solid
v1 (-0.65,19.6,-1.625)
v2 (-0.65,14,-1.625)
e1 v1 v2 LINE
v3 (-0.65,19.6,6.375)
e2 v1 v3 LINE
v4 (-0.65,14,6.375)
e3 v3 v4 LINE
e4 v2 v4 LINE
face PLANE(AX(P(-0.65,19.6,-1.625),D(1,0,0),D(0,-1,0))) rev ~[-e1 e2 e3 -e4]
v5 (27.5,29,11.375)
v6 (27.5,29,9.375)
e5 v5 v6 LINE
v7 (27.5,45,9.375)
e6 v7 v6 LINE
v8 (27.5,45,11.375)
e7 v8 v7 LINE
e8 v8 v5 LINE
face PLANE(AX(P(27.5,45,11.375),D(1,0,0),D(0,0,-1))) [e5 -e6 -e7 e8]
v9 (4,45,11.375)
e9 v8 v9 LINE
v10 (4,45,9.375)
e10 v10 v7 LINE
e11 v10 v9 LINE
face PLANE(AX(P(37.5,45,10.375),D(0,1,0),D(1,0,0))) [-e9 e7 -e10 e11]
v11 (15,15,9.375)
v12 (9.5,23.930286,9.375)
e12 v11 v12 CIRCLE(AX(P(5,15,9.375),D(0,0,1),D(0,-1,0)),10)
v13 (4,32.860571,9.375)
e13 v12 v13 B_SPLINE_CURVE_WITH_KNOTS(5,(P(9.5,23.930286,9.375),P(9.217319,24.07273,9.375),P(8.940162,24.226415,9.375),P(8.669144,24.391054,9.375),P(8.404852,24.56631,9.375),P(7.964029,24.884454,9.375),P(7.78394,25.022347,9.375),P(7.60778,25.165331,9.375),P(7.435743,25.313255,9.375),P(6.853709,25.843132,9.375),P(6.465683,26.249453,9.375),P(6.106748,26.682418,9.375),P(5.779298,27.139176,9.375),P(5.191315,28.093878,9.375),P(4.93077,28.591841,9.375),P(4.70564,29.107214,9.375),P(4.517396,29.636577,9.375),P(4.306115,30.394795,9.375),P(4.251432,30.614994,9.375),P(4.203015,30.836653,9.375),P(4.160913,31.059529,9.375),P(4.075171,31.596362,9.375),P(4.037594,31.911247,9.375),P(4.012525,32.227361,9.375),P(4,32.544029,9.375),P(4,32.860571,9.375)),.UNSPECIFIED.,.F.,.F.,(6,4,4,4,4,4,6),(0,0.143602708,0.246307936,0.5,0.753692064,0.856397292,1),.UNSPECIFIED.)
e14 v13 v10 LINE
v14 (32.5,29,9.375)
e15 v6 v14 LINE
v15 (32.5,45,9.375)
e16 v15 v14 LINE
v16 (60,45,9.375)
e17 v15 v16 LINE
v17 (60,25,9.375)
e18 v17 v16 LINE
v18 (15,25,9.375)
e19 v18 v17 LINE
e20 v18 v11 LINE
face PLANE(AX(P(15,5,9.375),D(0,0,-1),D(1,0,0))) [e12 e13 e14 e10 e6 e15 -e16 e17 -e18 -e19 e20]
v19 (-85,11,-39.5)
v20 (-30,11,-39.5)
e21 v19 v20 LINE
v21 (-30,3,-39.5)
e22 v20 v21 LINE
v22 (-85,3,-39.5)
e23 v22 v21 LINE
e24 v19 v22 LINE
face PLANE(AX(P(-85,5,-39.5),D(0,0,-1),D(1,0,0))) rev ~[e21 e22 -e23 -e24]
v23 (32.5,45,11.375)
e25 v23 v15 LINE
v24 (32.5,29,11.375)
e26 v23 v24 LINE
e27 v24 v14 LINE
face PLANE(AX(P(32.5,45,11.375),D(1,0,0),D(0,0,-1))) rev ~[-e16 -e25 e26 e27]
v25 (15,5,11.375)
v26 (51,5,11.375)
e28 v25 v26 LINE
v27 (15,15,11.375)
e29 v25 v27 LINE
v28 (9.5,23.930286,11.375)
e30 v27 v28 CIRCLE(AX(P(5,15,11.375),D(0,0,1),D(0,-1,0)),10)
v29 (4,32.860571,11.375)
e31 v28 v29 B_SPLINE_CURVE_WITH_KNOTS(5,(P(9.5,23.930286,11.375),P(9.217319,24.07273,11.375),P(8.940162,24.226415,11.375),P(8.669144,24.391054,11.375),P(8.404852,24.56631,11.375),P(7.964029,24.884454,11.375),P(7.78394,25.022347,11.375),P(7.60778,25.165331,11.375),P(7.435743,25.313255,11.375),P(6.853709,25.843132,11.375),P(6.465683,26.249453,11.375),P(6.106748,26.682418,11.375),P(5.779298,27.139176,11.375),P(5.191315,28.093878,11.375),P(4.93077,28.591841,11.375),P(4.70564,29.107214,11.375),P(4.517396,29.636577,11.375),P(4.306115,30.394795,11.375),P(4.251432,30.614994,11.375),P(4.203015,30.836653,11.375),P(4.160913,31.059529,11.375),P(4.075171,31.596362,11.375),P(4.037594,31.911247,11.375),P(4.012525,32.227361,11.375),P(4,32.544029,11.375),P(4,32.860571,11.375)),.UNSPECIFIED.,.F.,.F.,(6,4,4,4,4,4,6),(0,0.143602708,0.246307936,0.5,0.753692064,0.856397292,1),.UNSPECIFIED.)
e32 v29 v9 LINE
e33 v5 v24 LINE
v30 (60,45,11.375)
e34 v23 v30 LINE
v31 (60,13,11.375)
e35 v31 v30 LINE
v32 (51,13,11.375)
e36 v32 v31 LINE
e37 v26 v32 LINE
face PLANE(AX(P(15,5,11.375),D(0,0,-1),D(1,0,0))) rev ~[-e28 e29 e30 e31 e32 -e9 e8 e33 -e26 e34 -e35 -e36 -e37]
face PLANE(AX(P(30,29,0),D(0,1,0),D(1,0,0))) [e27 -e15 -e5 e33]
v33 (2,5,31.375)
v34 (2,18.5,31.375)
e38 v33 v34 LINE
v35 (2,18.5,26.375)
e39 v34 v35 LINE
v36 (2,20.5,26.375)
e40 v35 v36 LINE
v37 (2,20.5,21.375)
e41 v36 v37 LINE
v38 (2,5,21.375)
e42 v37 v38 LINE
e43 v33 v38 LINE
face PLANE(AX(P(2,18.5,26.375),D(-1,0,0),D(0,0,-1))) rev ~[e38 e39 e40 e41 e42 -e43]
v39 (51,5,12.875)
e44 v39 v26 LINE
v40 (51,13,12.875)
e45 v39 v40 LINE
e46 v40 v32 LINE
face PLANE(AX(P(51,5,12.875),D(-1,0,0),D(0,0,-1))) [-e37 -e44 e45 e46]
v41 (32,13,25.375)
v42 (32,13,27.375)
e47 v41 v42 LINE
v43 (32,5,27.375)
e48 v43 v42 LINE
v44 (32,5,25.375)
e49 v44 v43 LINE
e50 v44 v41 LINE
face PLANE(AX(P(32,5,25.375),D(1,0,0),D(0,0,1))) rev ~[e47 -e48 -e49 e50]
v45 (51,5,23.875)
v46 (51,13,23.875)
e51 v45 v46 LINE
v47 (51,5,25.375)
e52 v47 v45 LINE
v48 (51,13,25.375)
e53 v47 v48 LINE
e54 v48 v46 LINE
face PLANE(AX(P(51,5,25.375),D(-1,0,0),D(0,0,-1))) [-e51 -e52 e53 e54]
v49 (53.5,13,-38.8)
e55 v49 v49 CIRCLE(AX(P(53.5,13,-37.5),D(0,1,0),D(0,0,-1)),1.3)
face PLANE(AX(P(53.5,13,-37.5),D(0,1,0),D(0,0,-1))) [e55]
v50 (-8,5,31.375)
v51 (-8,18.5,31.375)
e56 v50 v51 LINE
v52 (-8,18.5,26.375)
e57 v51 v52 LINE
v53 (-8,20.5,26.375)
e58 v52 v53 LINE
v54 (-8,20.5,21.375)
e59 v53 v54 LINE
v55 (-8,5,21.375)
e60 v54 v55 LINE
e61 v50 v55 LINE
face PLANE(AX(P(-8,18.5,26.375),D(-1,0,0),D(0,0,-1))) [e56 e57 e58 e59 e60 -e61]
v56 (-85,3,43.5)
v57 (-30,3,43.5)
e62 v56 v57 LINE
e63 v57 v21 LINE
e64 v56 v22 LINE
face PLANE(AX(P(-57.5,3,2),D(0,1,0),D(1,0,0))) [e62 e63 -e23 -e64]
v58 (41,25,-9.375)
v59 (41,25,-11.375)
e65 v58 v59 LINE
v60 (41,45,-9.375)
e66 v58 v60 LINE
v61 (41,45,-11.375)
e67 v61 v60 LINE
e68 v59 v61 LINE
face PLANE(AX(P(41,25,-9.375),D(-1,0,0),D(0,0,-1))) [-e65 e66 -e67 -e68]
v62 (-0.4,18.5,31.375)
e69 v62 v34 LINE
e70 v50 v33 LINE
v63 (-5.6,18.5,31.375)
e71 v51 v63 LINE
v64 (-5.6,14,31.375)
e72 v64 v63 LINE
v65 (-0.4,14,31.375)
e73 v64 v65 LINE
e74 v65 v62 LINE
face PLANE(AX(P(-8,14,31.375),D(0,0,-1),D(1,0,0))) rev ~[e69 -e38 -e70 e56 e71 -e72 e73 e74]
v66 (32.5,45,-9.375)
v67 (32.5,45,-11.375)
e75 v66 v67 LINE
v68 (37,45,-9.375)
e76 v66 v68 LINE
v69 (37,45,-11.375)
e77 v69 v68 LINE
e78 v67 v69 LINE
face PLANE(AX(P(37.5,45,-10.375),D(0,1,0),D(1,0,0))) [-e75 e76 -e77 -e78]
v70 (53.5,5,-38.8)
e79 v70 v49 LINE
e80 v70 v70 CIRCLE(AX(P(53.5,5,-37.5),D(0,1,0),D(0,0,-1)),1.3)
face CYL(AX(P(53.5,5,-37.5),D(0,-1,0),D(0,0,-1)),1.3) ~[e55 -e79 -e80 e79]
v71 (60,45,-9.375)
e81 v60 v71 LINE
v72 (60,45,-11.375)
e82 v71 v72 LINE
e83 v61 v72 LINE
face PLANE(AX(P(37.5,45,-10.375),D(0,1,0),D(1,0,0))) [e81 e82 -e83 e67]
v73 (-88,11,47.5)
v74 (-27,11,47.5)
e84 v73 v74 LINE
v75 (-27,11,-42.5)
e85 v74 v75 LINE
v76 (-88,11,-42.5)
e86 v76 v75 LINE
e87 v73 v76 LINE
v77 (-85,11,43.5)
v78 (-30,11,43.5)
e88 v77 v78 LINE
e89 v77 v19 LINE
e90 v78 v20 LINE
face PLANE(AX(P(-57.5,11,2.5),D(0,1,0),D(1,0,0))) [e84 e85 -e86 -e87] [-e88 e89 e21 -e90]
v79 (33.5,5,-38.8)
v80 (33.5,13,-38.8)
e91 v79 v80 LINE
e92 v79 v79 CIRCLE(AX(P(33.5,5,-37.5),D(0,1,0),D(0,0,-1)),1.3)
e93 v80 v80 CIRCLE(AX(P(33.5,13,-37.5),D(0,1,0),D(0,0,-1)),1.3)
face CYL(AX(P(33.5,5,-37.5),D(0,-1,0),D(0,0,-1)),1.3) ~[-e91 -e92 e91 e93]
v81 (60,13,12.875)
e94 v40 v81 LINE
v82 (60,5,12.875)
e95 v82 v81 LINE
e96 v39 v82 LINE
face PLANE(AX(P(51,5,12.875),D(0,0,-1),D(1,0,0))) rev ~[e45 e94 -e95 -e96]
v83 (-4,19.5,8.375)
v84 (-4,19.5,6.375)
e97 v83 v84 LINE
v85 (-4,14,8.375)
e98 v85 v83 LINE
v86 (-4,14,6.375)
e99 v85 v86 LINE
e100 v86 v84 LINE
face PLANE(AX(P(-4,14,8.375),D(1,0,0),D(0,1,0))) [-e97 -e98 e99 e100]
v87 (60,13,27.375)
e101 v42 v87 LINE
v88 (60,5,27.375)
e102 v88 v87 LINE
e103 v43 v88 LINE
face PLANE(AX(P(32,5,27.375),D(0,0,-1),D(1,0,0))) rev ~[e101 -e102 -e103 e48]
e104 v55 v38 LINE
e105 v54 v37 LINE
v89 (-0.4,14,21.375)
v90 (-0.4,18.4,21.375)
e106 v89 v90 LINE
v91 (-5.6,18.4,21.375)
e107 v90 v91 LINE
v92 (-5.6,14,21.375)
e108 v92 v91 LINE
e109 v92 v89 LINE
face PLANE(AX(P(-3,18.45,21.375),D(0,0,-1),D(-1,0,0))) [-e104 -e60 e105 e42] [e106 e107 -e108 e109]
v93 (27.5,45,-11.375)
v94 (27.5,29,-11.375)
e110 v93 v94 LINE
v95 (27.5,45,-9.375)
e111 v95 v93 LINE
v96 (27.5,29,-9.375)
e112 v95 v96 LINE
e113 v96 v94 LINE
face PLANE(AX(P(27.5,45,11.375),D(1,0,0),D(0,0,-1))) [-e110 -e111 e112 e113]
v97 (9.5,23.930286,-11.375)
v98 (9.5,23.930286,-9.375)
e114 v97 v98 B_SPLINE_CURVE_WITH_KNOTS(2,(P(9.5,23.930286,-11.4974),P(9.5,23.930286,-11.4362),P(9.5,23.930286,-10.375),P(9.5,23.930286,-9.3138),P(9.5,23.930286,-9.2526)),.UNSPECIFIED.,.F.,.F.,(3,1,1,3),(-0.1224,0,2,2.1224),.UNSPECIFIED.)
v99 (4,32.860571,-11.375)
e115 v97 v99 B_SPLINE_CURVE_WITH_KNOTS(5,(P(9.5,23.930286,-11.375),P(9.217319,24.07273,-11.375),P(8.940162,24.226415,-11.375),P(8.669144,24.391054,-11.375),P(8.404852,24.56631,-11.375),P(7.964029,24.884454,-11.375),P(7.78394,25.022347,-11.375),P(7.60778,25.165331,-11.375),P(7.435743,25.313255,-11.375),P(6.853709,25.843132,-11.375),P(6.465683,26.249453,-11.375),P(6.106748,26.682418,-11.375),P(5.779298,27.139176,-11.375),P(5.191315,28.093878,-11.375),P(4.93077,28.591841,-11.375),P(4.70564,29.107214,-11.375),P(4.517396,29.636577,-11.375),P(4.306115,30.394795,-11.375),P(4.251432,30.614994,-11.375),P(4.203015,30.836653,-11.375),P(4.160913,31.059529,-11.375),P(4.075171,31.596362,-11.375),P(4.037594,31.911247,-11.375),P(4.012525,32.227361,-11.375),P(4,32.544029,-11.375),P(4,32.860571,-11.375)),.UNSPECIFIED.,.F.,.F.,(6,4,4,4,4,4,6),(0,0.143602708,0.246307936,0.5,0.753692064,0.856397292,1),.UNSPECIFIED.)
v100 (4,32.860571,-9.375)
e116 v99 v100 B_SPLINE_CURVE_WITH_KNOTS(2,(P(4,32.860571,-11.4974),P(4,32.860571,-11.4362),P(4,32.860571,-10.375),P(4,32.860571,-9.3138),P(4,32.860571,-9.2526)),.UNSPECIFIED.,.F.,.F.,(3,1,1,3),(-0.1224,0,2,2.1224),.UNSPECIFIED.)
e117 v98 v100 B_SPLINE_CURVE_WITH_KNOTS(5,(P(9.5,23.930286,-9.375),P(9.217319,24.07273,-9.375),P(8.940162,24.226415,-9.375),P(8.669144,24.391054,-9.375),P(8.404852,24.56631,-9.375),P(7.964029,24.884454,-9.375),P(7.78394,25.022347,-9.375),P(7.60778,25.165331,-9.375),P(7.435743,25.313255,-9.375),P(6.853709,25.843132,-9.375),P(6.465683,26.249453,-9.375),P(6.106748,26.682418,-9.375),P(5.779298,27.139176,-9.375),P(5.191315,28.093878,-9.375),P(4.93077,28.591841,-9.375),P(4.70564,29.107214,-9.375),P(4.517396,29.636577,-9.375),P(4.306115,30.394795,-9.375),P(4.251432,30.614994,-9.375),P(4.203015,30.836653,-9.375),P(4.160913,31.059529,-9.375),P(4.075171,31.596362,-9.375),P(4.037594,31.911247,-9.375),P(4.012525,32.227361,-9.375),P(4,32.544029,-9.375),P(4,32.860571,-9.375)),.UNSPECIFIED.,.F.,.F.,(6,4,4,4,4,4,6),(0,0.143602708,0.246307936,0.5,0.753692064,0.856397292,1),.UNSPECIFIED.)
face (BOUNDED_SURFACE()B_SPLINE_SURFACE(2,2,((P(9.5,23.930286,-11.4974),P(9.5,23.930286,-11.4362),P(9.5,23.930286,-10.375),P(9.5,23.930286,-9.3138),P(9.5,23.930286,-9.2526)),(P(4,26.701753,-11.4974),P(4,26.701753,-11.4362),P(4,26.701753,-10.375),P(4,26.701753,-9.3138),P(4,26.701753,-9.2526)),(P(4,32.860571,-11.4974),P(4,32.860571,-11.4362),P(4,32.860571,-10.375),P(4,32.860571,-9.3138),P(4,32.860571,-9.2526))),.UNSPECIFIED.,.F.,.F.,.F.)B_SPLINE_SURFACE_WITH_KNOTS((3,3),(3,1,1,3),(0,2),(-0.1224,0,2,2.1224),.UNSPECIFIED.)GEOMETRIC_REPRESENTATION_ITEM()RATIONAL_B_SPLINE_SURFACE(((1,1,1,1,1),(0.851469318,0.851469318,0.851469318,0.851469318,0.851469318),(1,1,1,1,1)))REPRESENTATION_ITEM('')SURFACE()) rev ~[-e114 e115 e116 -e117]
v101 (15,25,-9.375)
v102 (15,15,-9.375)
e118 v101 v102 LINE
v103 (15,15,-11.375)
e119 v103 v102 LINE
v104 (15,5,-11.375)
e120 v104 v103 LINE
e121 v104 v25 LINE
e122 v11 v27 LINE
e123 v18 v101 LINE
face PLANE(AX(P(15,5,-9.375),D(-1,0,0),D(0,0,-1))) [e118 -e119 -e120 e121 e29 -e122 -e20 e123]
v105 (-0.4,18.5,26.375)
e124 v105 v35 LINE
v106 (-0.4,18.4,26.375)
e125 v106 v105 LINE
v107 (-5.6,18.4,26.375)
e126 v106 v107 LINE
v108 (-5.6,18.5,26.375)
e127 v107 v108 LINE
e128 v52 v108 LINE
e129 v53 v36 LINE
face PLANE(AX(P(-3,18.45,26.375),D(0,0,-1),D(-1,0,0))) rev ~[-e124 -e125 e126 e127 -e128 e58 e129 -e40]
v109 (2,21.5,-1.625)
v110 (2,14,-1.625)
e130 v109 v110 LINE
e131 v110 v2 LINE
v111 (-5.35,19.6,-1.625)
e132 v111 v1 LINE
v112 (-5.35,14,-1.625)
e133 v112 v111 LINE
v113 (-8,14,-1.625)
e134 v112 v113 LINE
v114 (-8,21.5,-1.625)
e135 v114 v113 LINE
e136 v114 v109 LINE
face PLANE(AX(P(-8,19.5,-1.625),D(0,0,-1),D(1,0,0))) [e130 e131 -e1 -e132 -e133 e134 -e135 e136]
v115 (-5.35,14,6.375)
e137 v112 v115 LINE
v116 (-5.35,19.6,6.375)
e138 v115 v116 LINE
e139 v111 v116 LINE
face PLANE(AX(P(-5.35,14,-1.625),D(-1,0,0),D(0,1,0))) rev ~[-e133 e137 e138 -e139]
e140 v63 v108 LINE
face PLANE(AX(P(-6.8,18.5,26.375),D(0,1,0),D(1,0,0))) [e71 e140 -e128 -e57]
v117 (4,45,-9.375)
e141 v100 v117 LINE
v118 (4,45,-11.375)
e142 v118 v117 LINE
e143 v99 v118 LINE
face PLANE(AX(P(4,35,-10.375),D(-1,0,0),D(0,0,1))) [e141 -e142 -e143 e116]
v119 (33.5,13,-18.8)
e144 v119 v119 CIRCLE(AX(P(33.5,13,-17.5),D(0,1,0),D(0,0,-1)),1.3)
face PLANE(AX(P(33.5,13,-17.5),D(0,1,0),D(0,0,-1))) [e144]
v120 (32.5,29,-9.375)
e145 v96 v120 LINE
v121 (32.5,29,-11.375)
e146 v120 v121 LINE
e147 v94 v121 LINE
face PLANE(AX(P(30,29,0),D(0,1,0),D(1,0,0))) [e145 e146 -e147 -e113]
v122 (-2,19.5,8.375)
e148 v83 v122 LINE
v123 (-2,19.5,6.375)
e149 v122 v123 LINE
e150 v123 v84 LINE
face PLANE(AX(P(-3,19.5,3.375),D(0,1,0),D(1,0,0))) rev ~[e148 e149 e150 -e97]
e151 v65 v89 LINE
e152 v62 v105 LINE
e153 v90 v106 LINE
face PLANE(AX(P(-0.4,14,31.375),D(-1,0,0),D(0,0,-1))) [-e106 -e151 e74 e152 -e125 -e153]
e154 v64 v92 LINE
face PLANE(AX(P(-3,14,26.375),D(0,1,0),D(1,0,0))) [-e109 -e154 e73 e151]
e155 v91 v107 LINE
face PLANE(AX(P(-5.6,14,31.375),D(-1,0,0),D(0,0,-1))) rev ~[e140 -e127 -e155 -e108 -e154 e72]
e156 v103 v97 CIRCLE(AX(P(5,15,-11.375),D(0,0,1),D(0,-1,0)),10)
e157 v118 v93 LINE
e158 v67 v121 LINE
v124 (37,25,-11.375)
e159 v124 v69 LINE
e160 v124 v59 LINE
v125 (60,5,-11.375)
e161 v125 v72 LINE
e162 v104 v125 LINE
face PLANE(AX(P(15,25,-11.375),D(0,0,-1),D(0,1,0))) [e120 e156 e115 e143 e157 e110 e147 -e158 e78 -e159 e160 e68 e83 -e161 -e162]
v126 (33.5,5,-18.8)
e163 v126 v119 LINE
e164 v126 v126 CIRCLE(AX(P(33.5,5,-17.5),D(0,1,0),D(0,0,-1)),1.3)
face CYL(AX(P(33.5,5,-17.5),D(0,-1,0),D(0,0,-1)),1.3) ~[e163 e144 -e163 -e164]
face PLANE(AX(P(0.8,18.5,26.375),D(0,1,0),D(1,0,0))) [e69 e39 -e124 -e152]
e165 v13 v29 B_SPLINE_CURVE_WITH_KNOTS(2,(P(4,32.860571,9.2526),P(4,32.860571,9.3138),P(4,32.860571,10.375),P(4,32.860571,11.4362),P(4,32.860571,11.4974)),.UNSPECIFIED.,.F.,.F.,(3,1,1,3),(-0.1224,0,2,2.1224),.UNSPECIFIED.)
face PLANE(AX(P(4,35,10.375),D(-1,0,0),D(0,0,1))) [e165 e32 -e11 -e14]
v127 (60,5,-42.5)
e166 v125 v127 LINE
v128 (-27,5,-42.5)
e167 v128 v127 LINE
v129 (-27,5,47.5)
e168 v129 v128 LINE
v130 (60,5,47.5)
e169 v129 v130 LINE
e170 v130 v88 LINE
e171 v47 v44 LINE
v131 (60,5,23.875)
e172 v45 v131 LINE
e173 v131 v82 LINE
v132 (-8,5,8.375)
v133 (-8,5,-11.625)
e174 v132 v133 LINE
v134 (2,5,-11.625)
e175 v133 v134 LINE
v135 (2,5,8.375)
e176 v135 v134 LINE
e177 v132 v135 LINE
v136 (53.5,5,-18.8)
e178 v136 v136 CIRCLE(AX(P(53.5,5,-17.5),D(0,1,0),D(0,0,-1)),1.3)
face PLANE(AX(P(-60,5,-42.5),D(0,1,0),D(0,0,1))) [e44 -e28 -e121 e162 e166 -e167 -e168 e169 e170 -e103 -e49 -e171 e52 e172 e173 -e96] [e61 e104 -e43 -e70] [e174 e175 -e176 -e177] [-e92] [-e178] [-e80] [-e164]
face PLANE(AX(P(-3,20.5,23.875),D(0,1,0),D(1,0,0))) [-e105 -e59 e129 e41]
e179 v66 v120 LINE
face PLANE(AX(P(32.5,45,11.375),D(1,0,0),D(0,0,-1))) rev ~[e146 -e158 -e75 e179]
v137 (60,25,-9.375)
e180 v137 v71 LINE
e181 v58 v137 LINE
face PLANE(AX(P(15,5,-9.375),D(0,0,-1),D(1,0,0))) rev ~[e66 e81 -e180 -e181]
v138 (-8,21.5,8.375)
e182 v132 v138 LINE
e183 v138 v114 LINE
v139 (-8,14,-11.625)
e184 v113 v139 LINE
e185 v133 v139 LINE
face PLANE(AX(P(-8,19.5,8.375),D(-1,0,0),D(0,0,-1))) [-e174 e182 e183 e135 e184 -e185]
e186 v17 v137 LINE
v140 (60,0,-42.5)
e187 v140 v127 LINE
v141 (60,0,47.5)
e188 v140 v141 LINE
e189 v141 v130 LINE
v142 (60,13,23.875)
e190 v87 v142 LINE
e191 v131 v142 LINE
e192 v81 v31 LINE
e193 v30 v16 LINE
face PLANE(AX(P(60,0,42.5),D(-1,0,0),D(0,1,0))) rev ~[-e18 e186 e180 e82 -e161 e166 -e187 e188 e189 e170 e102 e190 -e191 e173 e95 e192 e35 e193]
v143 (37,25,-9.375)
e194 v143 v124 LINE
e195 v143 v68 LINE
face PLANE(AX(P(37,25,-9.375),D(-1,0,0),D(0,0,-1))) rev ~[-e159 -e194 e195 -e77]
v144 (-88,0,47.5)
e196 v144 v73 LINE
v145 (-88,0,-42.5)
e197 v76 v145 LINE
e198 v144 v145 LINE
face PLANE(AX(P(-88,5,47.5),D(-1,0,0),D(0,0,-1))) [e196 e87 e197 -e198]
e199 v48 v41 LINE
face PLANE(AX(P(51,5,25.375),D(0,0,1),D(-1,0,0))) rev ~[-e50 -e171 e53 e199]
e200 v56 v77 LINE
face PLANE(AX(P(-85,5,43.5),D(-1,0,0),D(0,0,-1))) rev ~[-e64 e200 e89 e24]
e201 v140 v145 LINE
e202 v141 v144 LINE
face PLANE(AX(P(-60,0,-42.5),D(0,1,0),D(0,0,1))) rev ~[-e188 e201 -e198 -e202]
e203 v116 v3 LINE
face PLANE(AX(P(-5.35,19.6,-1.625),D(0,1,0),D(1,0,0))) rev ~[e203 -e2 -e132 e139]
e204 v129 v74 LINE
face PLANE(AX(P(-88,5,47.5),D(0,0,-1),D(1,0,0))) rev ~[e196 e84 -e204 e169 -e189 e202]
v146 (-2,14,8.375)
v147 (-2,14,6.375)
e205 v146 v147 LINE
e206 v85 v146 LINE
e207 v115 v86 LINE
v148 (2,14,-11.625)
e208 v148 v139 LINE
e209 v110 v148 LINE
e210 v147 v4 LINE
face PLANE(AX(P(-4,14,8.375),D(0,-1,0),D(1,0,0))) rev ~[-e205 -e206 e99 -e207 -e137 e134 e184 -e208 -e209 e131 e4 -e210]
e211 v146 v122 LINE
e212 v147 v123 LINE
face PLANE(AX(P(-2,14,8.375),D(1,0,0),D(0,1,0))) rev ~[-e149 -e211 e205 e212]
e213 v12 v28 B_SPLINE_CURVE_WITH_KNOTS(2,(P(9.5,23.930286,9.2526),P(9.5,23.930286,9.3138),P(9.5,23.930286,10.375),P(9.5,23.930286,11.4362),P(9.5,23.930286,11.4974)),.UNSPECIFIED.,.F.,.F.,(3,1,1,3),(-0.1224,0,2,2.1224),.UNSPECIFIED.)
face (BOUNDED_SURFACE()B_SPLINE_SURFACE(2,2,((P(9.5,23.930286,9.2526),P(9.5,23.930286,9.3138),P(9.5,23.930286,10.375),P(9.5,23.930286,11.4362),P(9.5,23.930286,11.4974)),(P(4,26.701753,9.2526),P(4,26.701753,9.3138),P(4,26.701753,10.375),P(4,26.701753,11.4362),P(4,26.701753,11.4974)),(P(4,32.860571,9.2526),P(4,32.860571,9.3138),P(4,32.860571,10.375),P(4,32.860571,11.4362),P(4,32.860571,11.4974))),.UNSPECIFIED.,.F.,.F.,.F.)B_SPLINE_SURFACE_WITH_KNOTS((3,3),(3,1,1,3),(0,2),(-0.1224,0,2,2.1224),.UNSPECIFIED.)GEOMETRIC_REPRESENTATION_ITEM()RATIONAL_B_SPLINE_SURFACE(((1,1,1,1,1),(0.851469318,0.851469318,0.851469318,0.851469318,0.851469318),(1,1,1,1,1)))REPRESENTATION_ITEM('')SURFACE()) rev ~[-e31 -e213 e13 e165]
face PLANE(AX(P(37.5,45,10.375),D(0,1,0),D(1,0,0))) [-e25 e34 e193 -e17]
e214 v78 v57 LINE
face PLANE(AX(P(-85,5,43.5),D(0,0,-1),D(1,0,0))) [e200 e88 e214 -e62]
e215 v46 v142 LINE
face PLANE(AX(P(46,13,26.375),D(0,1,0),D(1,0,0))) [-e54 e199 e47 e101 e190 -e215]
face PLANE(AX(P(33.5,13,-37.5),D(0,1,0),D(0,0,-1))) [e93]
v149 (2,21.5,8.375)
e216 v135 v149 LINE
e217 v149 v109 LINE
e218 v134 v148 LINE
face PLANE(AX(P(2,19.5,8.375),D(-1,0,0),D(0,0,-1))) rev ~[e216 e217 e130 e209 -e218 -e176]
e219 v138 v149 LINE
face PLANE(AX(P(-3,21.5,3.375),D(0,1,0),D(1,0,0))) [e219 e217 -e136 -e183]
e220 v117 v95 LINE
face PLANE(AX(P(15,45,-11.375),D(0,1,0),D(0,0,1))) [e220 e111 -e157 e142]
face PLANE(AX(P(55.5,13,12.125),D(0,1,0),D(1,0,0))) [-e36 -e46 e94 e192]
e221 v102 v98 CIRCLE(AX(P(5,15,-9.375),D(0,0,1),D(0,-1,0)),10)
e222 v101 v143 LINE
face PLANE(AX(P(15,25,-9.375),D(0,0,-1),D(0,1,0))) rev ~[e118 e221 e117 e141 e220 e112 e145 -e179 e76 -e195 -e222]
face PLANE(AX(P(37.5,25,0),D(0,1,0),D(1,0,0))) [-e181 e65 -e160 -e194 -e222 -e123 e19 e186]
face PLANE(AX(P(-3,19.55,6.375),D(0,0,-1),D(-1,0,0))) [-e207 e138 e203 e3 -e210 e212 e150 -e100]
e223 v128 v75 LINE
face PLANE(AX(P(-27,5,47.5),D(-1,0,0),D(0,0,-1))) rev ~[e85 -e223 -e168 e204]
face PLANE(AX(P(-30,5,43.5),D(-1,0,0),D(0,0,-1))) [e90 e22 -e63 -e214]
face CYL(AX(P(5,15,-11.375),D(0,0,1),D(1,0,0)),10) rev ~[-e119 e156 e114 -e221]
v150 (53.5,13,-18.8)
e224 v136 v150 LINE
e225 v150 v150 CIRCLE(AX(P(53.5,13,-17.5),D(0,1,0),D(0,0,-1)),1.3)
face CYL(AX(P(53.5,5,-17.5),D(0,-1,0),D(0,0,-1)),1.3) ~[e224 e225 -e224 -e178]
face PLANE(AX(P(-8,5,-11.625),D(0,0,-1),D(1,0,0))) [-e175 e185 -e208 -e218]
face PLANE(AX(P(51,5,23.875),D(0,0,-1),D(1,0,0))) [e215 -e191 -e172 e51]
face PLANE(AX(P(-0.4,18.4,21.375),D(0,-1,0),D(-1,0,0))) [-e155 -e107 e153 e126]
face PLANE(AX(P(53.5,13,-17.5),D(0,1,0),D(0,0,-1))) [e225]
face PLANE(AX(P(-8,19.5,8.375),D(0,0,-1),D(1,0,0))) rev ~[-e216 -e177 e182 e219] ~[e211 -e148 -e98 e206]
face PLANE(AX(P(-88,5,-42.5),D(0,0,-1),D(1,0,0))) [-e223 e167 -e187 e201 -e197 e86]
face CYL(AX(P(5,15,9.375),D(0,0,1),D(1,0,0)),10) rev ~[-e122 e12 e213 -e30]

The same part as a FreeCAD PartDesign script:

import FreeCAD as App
import Part
import Sketcher
from FreeCAD import Vector
Q = App.Units.Quantity


def edges_at(feature, points):
    """Names of the edges that pass closest to the given points."""
    edges = feature.Shape.Edges
    near = lambda p: min(range(len(edges)), key=lambda i: edges[i].distToShape(Part.Vertex(*p))[0])
    return sorted({f"Edge{near(p) + 1}" for p in points})


def add_polygon(sketch, points):
    """Adds a closed chain of lines whose ends are joined by coincident constraints."""
    first, n = sketch.GeometryCount, len(points)
    for a, b in zip(points, points[1:] + points[:1]):
        sketch.addGeometry(Part.LineSegment(App.Vector(*a, 0), App.Vector(*b, 0)), False)
    for i in range(n):
        sketch.addConstraint(Sketcher.Constraint("Coincident", first + i, 2, first + (i + 1) % n, 1))

doc = App.newDocument("Part")
body = doc.addObject("PartDesign::Body", "Body")

# Sketch on XZ plane
sketch1 = doc.addObject("Sketcher::SketchObject", "Sketch")
body.addObject(sketch1)
sketch1.AttachmentSupport = (doc.XZ_Plane, [""])
sketch1.MapMode = "FlatFace"
add_polygon(sketch1, [(-60, -42.5), (-60, 42.5), (60, 42.5), (60, -42.5)])  # lines 0-3
sketch1.addConstraint(Sketcher.Constraint("Vertical", 0))
sketch1.addConstraint(Sketcher.Constraint("Horizontal", 1))
sketch1.addConstraint(Sketcher.Constraint("Vertical", 2))
sketch1.addConstraint(Sketcher.Constraint("Horizontal", 3))
sketch1.addConstraint(Sketcher.Constraint("Symmetric", 0, 2, 2, 2, -1, 1))
sketch1.addConstraint(Sketcher.Constraint("DistanceX", 1, 1, 1, 2, Q("120 mm")))
sketch1.addConstraint(Sketcher.Constraint("DistanceY", 0, 1, 0, 2, Q("85 mm")))
pad1 = doc.addObject("PartDesign::Pad", "Pad")
body.addObject(pad1)
pad1.Profile = sketch1
pad1.Length = 5
pad1.Reversed = True

# Sketch on XZ plane
sketch2 = doc.addObject("Sketcher::SketchObject", "Sketch001")
body.addObject(sketch2)
sketch2.AttachmentSupport = (doc.XZ_Plane, [""])
sketch2.MapMode = "FlatFace"
sketch2.AttachmentOffset = App.Placement(Vector(0, 0, -5), App.Rotation())
add_polygon(sketch2, [(15, -9.375), (15, 9.375), (60, 9.375), (60, -9.375)])  # lines 0-3
sketch2.addConstraint(Sketcher.Constraint("Vertical", 0))
sketch2.addConstraint(Sketcher.Constraint("Horizontal", 1))
sketch2.addConstraint(Sketcher.Constraint("Vertical", 2))
sketch2.addConstraint(Sketcher.Constraint("Horizontal", 3))
sketch2.addConstraint(Sketcher.Constraint("DistanceX", 1, 1, 1, 2, Q("45 mm")))
sketch2.addConstraint(Sketcher.Constraint("DistanceX", -1, 1, 0, 2, Q("15 mm")))
sketch2.addConstraint(Sketcher.Constraint("DistanceY", 0, 1, 0, 2, Q("18.75 mm")))
sketch2.addConstraint(Sketcher.Constraint("DistanceY", -1, 1, 0, 2, Q("9.375 mm")))
pad2 = doc.addObject("PartDesign::Pad", "Pad001")
body.addObject(pad2)
pad2.Profile = sketch2
pad2.Length = 20
pad2.Reversed = True

# Sketch on XZ plane
sketch3 = doc.addObject("Sketcher::SketchObject", "Sketch002")
body.addObject(sketch3)
sketch3.AttachmentSupport = (doc.XZ_Plane, [""])
sketch3.MapMode = "FlatFace"
sketch3.AttachmentOffset = App.Placement(Vector(0, 0, -5), App.Rotation())
add_polygon(sketch3, [(15, -11.375), (15, -9.375), (60, -9.375), (60, -11.375)])  # lines 0-3
add_polygon(sketch3, [(15, 9.375), (15, 11.375), (60, 11.375), (60, 9.375)])  # lines 4-7
sketch3.addConstraint(Sketcher.Constraint("Vertical", 0))
sketch3.addConstraint(Sketcher.Constraint("Horizontal", 1))
sketch3.addConstraint(Sketcher.Constraint("Vertical", 2))
sketch3.addConstraint(Sketcher.Constraint("Horizontal", 3))
sketch3.addConstraint(Sketcher.Constraint("Vertical", 4))
sketch3.addConstraint(Sketcher.Constraint("Horizontal", 5))
sketch3.addConstraint(Sketcher.Constraint("Vertical", 6))
sketch3.addConstraint(Sketcher.Constraint("Horizontal", 7))
sketch3.addConstraint(Sketcher.Constraint("Symmetric", 3, 2, 4, 2, -1))
sketch3.addConstraint(Sketcher.Constraint("Symmetric", 1, 2, 6, 2, -1))
sketch3.addConstraint(Sketcher.Constraint("DistanceX", 1, 1, 1, 2, Q("45 mm")))
sketch3.addConstraint(Sketcher.Constraint("DistanceY", 0, 1, 0, 2, Q("2 mm")))
sketch3.addConstraint(Sketcher.Constraint("DistanceX", -1, 1, 0, 2, Q("15 mm")))
sketch3.addConstraint(Sketcher.Constraint("DistanceY", 0, 2, 4, 2, Q("20.75 mm")))
pad3 = doc.addObject("PartDesign::Pad", "Pad002")
body.addObject(pad3)
pad3.Profile = sketch3
pad3.Length = 40
pad3.Reversed = True

# Sketch on XZ plane
sketch4 = doc.addObject("Sketcher::SketchObject", "Sketch003")
body.addObject(sketch4)
sketch4.AttachmentSupport = (doc.XZ_Plane, [""])
sketch4.MapMode = "FlatFace"
sketch4.AttachmentOffset = App.Placement(Vector(0, 0, -45), App.Rotation())
add_polygon(sketch4, [(37, -11.375), (37, -9.375), (41, -9.375), (41, -11.375)])  # lines 0-3
sketch4.addConstraint(Sketcher.Constraint("Vertical", 0))
sketch4.addConstraint(Sketcher.Constraint("Horizontal", 1))
sketch4.addConstraint(Sketcher.Constraint("Vertical", 2))
sketch4.addConstraint(Sketcher.Constraint("Horizontal", 3))
sketch4.addConstraint(Sketcher.Constraint("DistanceX", 1, 1, 1, 2, Q("4 mm")))
sketch4.addConstraint(Sketcher.Constraint("DistanceY", 0, 1, 0, 2, Q("2 mm")))
sketch4.addConstraint(Sketcher.Constraint("DistanceX", -1, 1, 0, 2, Q("37 mm")))
sketch4.addConstraint(Sketcher.Constraint("DistanceY", 0, 2, -1, 1, Q("9.375 mm")))
pocket1 = doc.addObject("PartDesign::Pocket", "Pocket")
body.addObject(pocket1)
pocket1.Profile = sketch4
pocket1.Type = "TwoLengths"
pocket1.Length = 87.204698
pocket1.Length2 = 20

# Sketch on XZ plane
sketch5 = doc.addObject("Sketcher::SketchObject", "Sketch004")
body.addObject(sketch5)
sketch5.AttachmentSupport = (doc.XZ_Plane, [""])
sketch5.MapMode = "FlatFace"
sketch5.AttachmentOffset = App.Placement(Vector(0, 0, -5), App.Rotation())
add_polygon(sketch5, [(-8, -11.625), (-8, 8.375), (2, 8.375), (2, -11.625)])  # lines 0-3
sketch5.addConstraint(Sketcher.Constraint("Vertical", 0))
sketch5.addConstraint(Sketcher.Constraint("Horizontal", 1))
sketch5.addConstraint(Sketcher.Constraint("Vertical", 2))
sketch5.addConstraint(Sketcher.Constraint("Horizontal", 3))
sketch5.addConstraint(Sketcher.Constraint("DistanceX", 1, 1, 1, 2, Q("10 mm")))
sketch5.addConstraint(Sketcher.Constraint("DistanceY", 0, 1, 0, 2, Q("20 mm")))
sketch5.addConstraint(Sketcher.Constraint("DistanceX", 0, 2, -1, 1, Q("8 mm")))
sketch5.addConstraint(Sketcher.Constraint("DistanceY", -1, 1, 0, 2, Q("8.375 mm")))
pad4 = doc.addObject("PartDesign::Pad", "Pad003")
body.addObject(pad4)
pad4.Profile = sketch5
pad4.Length = 9
pad4.Reversed = True

# Sketch on XZ plane
sketch6 = doc.addObject("Sketcher::SketchObject", "Sketch005")
body.addObject(sketch6)
sketch6.AttachmentSupport = (doc.XZ_Plane, [""])
sketch6.MapMode = "FlatFace"
sketch6.AttachmentOffset = App.Placement(Vector(0, 0, -14), App.Rotation())
add_polygon(sketch6, [(-8, 8.375), (2, 8.375), (2, -1.625), (-0.75, -1.625), (-0.75, 6.375), (-5.25, 6.375), (-5.25, -1.625), (-8, -1.625)])  # lines 0-7
sketch6.addConstraint(Sketcher.Constraint("Horizontal", 0))
sketch6.addConstraint(Sketcher.Constraint("Vertical", 1))
sketch6.addConstraint(Sketcher.Constraint("Horizontal", 2))
sketch6.addConstraint(Sketcher.Constraint("Vertical", 3))
sketch6.addConstraint(Sketcher.Constraint("Horizontal", 4))
sketch6.addConstraint(Sketcher.Constraint("Vertical", 5))
sketch6.addConstraint(Sketcher.Constraint("Horizontal", 6))
sketch6.addConstraint(Sketcher.Constraint("Vertical", 7))
sketch6.addConstraint(Sketcher.Constraint("Horizontal", 2, 2, 5, 2))
sketch6.addConstraint(Sketcher.Constraint("Equal", 2, 6))
sketch6.addConstraint(Sketcher.Constraint("Equal", 0, 1))
sketch6.addConstraint(Sketcher.Constraint("DistanceX", 0, 1, 0, 2, Q("10 mm")))
sketch6.addConstraint(Sketcher.Constraint("DistanceY", 3, 1, 3, 2, Q("8 mm")))
sketch6.addConstraint(Sketcher.Constraint("DistanceX", 4, 2, 4, 1, Q("4.5 mm")))
sketch6.addConstraint(Sketcher.Constraint("DistanceX", -1, 1, 0, 2, Q("2 mm")))
sketch6.addConstraint(Sketcher.Constraint("DistanceY", -1, 1, 0, 2, Q("8.375 mm")))
pad5 = doc.addObject("PartDesign::Pad", "Pad004")
body.addObject(pad5)
pad5.Profile = sketch6
pad5.Length = 5.5
pad5.Reversed = True

# Sketch on XY plane
sketch7 = doc.addObject("Sketcher::SketchObject", "Sketch006")
body.addObject(sketch7)
sketch7.AttachmentSupport = (doc.XY_Plane, [""])
sketch7.MapMode = "FlatFace"
sketch7.AttachmentOffset = App.Placement(Vector(0, 0, 8.375), App.Rotation())
add_polygon(sketch7, [(-4, 19.5), (-4, 14), (-2, 14), (-2, 19.5)])  # lines 0-3
sketch7.addConstraint(Sketcher.Constraint("Vertical", 0))
sketch7.addConstraint(Sketcher.Constraint("Horizontal", 1))
sketch7.addConstraint(Sketcher.Constraint("Vertical", 2))
sketch7.addConstraint(Sketcher.Constraint("Horizontal", 3))
sketch7.addConstraint(Sketcher.Constraint("DistanceX", 1, 1, 1, 2, Q("2 mm")))
sketch7.addConstraint(Sketcher.Constraint("DistanceY", 0, 2, 0, 1, Q("5.5 mm")))
sketch7.addConstraint(Sketcher.Constraint("DistanceX", 0, 2, -1, 1, Q("4 mm")))
sketch7.addConstraint(Sketcher.Constraint("DistanceY", -1, 1, 0, 2, Q("14 mm")))
pocket2 = doc.addObject("PartDesign::Pocket", "Pocket001")
body.addObject(pocket2)
pocket2.Profile = sketch7
pocket2.Type = "ThroughAll"

# Sketch on XZ plane
sketch8 = doc.addObject("Sketcher::SketchObject", "Sketch007")
body.addObject(sketch8)
sketch8.AttachmentSupport = (doc.XZ_Plane, [""])
sketch8.MapMode = "FlatFace"
sketch8.AttachmentOffset = App.Placement(Vector(0, 0, -19.5), App.Rotation())
add_polygon(sketch8, [(-8, -1.625), (-8, 8.375), (2, 8.375), (2, -1.625)])  # lines 0-3
sketch8.addConstraint(Sketcher.Constraint("Vertical", 0))
sketch8.addConstraint(Sketcher.Constraint("Horizontal", 1))
sketch8.addConstraint(Sketcher.Constraint("Vertical", 2))
sketch8.addConstraint(Sketcher.Constraint("Horizontal", 3))
sketch8.addConstraint(Sketcher.Constraint("Equal", 3, 0))
sketch8.addConstraint(Sketcher.Constraint("DistanceX", 1, 1, 1, 2, Q("10 mm")))
sketch8.addConstraint(Sketcher.Constraint("DistanceX", 0, 2, -1, 1, Q("8 mm")))
sketch8.addConstraint(Sketcher.Constraint("DistanceY", -1, 1, 0, 2, Q("8.375 mm")))
pad6 = doc.addObject("PartDesign::Pad", "Pad005")
body.addObject(pad6)
pad6.Profile = sketch8
pad6.Length = 2
pad6.Reversed = True

# Sketch on XZ plane
sketch9 = doc.addObject("Sketcher::SketchObject", "Sketch008")
body.addObject(sketch9)
sketch9.AttachmentSupport = (doc.XZ_Plane, [""])
sketch9.MapMode = "FlatFace"
sketch9.AttachmentOffset = App.Placement(Vector(0, 0, -5), App.Rotation())
add_polygon(sketch9, [(-8, 21.375), (-8, 31.375), (2, 31.375), (2, 21.375)])  # lines 0-3
sketch9.addConstraint(Sketcher.Constraint("Vertical", 0))
sketch9.addConstraint(Sketcher.Constraint("Horizontal", 1))
sketch9.addConstraint(Sketcher.Constraint("Vertical", 2))
sketch9.addConstraint(Sketcher.Constraint("Horizontal", 3))
sketch9.addConstraint(Sketcher.Constraint("Equal", 3, 0))
sketch9.addConstraint(Sketcher.Constraint("DistanceX", 1, 1, 1, 2, Q("10 mm")))
sketch9.addConstraint(Sketcher.Constraint("DistanceX", 0, 2, -1, 1, Q("8 mm")))
sketch9.addConstraint(Sketcher.Constraint("DistanceY", -1, 1, 0, 2, Q("31.375 mm")))
pad7 = doc.addObject("PartDesign::Pad", "Pad006")
body.addObject(pad7)
pad7.Profile = sketch9
pad7.Length = 9
pad7.Reversed = True

# Sketch on XZ plane
sketch10 = doc.addObject("Sketcher::SketchObject", "Sketch009")
body.addObject(sketch10)
sketch10.AttachmentSupport = (doc.XZ_Plane, [""])
sketch10.MapMode = "FlatFace"
sketch10.AttachmentOffset = App.Placement(Vector(0, 0, -14), App.Rotation())
add_polygon(sketch10, [(-8, 21.375), (-8, 31.375), (-5.6, 31.375), (-5.6, 21.375)])  # lines 0-3
add_polygon(sketch10, [(-0.4, 21.375), (-0.4, 31.375), (2, 31.375), (2, 21.375)])  # lines 4-7
sketch10.addConstraint(Sketcher.Constraint("Vertical", 0))
sketch10.addConstraint(Sketcher.Constraint("Horizontal", 1))
sketch10.addConstraint(Sketcher.Constraint("Vertical", 2))
sketch10.addConstraint(Sketcher.Constraint("Horizontal", 3))
sketch10.addConstraint(Sketcher.Constraint("Vertical", 4))
sketch10.addConstraint(Sketcher.Constraint("Horizontal", 5))
sketch10.addConstraint(Sketcher.Constraint("Vertical", 6))
sketch10.addConstraint(Sketcher.Constraint("Horizontal", 7))
sketch10.addConstraint(Sketcher.Constraint("Horizontal", 1, 2, 4, 2))
sketch10.addConstraint(Sketcher.Constraint("Horizontal", 3, 2, 6, 2))
sketch10.addConstraint(Sketcher.Constraint("Equal", 3, 5))
sketch10.addConstraint(Sketcher.Constraint("DistanceY", 0, 1, 0, 2, Q("10 mm")))
sketch10.addConstraint(Sketcher.Constraint("DistanceX", 1, 1, 1, 2, Q("2.4 mm")))
sketch10.addConstraint(Sketcher.Constraint("DistanceX", 0, 2, -1, 1, Q("8 mm")))
sketch10.addConstraint(Sketcher.Constraint("DistanceX", -1, 1, 5, 2, Q("2 mm")))
sketch10.addConstraint(Sketcher.Constraint("DistanceY", -1, 1, 0, 2, Q("31.375 mm")))
pad8 = doc.addObject("PartDesign::Pad", "Pad007")
body.addObject(pad8)
pad8.Profile = sketch10
pad8.Length = 4.5
pad8.Reversed = True

# Sketch on XZ plane
sketch11 = doc.addObject("Sketcher::SketchObject", "Sketch010")
body.addObject(sketch11)
sketch11.AttachmentSupport = (doc.XZ_Plane, [""])
sketch11.MapMode = "FlatFace"
sketch11.AttachmentOffset = App.Placement(Vector(0, 0, -18.5), App.Rotation())
add_polygon(sketch11, [(-8, 21.375), (-8, 26.375), (2, 26.375), (2, 21.375)])  # lines 0-3
sketch11.addConstraint(Sketcher.Constraint("Vertical", 0))
sketch11.addConstraint(Sketcher.Constraint("Horizontal", 1))
sketch11.addConstraint(Sketcher.Constraint("Vertical", 2))
sketch11.addConstraint(Sketcher.Constraint("Horizontal", 3))
sketch11.addConstraint(Sketcher.Constraint("DistanceX", 1, 1, 1, 2, Q("10 mm")))
sketch11.addConstraint(Sketcher.Constraint("DistanceY", 0, 1, 0, 2, Q("5 mm")))
sketch11.addConstraint(Sketcher.Constraint("DistanceX", 0, 2, -1, 1, Q("8 mm")))
sketch11.addConstraint(Sketcher.Constraint("DistanceY", -1, 1, 0, 2, Q("26.375 mm")))
pad9 = doc.addObject("PartDesign::Pad", "Pad008")
body.addObject(pad9)
pad9.Profile = sketch11
pad9.Length = 2
pad9.Reversed = True

# Sketch on XZ plane
sketch12 = doc.addObject("Sketcher::SketchObject", "Sketch011")
body.addObject(sketch12)
sketch12.AttachmentSupport = (doc.XZ_Plane, [""])
sketch12.MapMode = "FlatFace"
sketch12.AttachmentOffset = App.Placement(Vector(0, 0, -5), App.Rotation())
sketch12.addGeometry(Part.Circle(Vector(33.5, -37.5, 0), Vector(0, 0, 1), 1.3), False)
sketch12.addGeometry(Part.Circle(Vector(53.5, -37.5, 0), Vector(0, 0, 1), 1.3), False)
sketch12.addGeometry(Part.Circle(Vector(53.5, -17.5, 0), Vector(0, 0, 1), 1.3), False)
sketch12.addGeometry(Part.Circle(Vector(33.5, -17.5, 0), Vector(0, 0, 1), 1.3), False)
sketch12.addConstraint(Sketcher.Constraint("Equal", 0, 1))
sketch12.addConstraint(Sketcher.Constraint("Equal", 1, 2))
sketch12.addConstraint(Sketcher.Constraint("Equal", 2, 3))
sketch12.addConstraint(Sketcher.Constraint("Horizontal", 0, 3, 1, 3))
sketch12.addConstraint(Sketcher.Constraint("Horizontal", 2, 3, 3, 3))
sketch12.addConstraint(Sketcher.Constraint("Vertical", 1, 3, 2, 3))
sketch12.addConstraint(Sketcher.Constraint("Vertical", 0, 3, 3, 3))
sketch12.addConstraint(Sketcher.Constraint("Diameter", 0, Q("2.6 mm")))
sketch12.addConstraint(Sketcher.Constraint("DistanceX", 0, 3, 1, 3, Q("20 mm")))
sketch12.addConstraint(Sketcher.Constraint("DistanceY", 1, 3, 2, 3, Q("20 mm")))
sketch12.addConstraint(Sketcher.Constraint("DistanceX", -1, 1, 0, 3, Q("33.5 mm")))
sketch12.addConstraint(Sketcher.Constraint("DistanceY", 0, 3, -1, 1, Q("37.5 mm")))
pad10 = doc.addObject("PartDesign::Pad", "Pad009")
body.addObject(pad10)
pad10.Profile = sketch12
pad10.Length = 8
pad10.Reversed = True

# Sketch on XZ plane
sketch13 = doc.addObject("Sketcher::SketchObject", "Sketch012")
body.addObject(sketch13)
sketch13.AttachmentSupport = (doc.XZ_Plane, [""])
sketch13.MapMode = "FlatFace"
sketch13.AttachmentOffset = App.Placement(Vector(0, 0, -5), App.Rotation())
add_polygon(sketch13, [(51, 11.375), (51, 12.875), (60, 12.875), (60, 11.375)])  # lines 0-3
add_polygon(sketch13, [(32, 25.375), (32, 27.375), (60, 27.375), (60, 23.875), (51, 23.875), (51, 25.375)])  # lines 4-9
sketch13.addConstraint(Sketcher.Constraint("Vertical", 0))
sketch13.addConstraint(Sketcher.Constraint("Horizontal", 1))
sketch13.addConstraint(Sketcher.Constraint("Vertical", 2))
sketch13.addConstraint(Sketcher.Constraint("Horizontal", 3))
sketch13.addConstraint(Sketcher.Constraint("Vertical", 4))
sketch13.addConstraint(Sketcher.Constraint("Horizontal", 5))
sketch13.addConstraint(Sketcher.Constraint("Vertical", 6))
sketch13.addConstraint(Sketcher.Constraint("Horizontal", 7))
sketch13.addConstraint(Sketcher.Constraint("Vertical", 8))
sketch13.addConstraint(Sketcher.Constraint("Horizontal", 9))
sketch13.addConstraint(Sketcher.Constraint("Vertical", 2, 2, 5, 2))
sketch13.addConstraint(Sketcher.Constraint("Vertical", 3, 2, 7, 2))
sketch13.addConstraint(Sketcher.Constraint("Equal", 2, 8))
sketch13.addConstraint(Sketcher.Constraint("DistanceX", 1, 1, 1, 2, Q("9 mm")))
sketch13.addConstraint(Sketcher.Constraint("DistanceX", 5, 1, 5, 2, Q("28 mm")))
sketch13.addConstraint(Sketcher.Constraint("DistanceY", 4, 1, 4, 2, Q("2 mm")))
sketch13.addConstraint(Sketcher.Constraint("DistanceY", 0, 1, 0, 2, Q("1.5 mm")))
sketch13.addConstraint(Sketcher.Constraint("DistanceX", -1, 1, 0, 2, Q("51 mm")))
sketch13.addConstraint(Sketcher.Constraint("DistanceY", 3, 2, 4, 2, Q("16 mm")))
sketch13.addConstraint(Sketcher.Constraint("DistanceY", -1, 1, 0, 2, Q("12.875 mm")))
pad11 = doc.addObject("PartDesign::Pad", "Pad010")
body.addObject(pad11)
pad11.Profile = sketch13
pad11.Length = 8
pad11.Reversed = True

# Sketch on XY plane
sketch14 = doc.addObject("Sketcher::SketchObject", "Sketch013")
body.addObject(sketch14)
sketch14.AttachmentSupport = (doc.XY_Plane, [""])
sketch14.MapMode = "FlatFace"
sketch14.AttachmentOffset = App.Placement(Vector(0, 0, 42.5), App.Rotation())
add_polygon(sketch14, [(-60, 5), (-60, 0), (60, 0), (60, 5)])  # lines 0-3
sketch14.addConstraint(Sketcher.Constraint("Vertical", 0))
sketch14.addConstraint(Sketcher.Constraint("Horizontal", 1))
sketch14.addConstraint(Sketcher.Constraint("Vertical", 2))
sketch14.addConstraint(Sketcher.Constraint("Horizontal", 3))
sketch14.addConstraint(Sketcher.Constraint("Symmetric", 0, 2, 1, 2, -1, 1))
sketch14.addConstraint(Sketcher.Constraint("DistanceX", 1, 1, 1, 2, Q("120 mm")))
sketch14.addConstraint(Sketcher.Constraint("DistanceY", 0, 2, 0, 1, Q("5 mm")))
pad12 = doc.addObject("PartDesign::Pad", "Pad011")
body.addObject(pad12)
pad12.Profile = sketch14
pad12.Length = 5

# Sketch on YZ plane
sketch15 = doc.addObject("Sketcher::SketchObject", "Sketch014")
body.addObject(sketch15)
sketch15.AttachmentSupport = (doc.YZ_Plane, [""])
sketch15.MapMode = "FlatFace"
sketch15.AttachmentOffset = App.Placement(Vector(0, 0, -60), App.Rotation())
add_polygon(sketch15, [(5, -42.5), (0, -42.5), (0, 47.5), (5, 47.5)])  # lines 0-3
sketch15.addConstraint(Sketcher.Constraint("Horizontal", 0))
sketch15.addConstraint(Sketcher.Constraint("Vertical", 1))
sketch15.addConstraint(Sketcher.Constraint("Horizontal", 2))
sketch15.addConstraint(Sketcher.Constraint("Vertical", 3))
sketch15.addConstraint(Sketcher.Constraint("PointOnObject", 0, 2, -2))
sketch15.addConstraint(Sketcher.Constraint("DistanceX", 0, 2, 0, 1, Q("5 mm")))
sketch15.addConstraint(Sketcher.Constraint("DistanceY", 1, 1, 1, 2, Q("90 mm")))
sketch15.addConstraint(Sketcher.Constraint("DistanceY", 0, 2, -1, 1, Q("42.5 mm")))
pad13 = doc.addObject("PartDesign::Pad", "Pad012")
body.addObject(pad13)
pad13.Profile = sketch15
pad13.Length = 30
pad13.Reversed = True

# Sketch on XZ plane
sketch16 = doc.addObject("Sketcher::SketchObject", "Sketch015")
body.addObject(sketch16)
sketch16.AttachmentSupport = (doc.XZ_Plane, [""])
sketch16.MapMode = "FlatFace"
sketch16.AttachmentOffset = App.Placement(Vector(0, 0, -5), App.Rotation())
add_polygon(sketch16, [(-85, -39.5), (-85, 43.5), (-30, 43.5), (-30, -39.5)])  # lines 0-3
sketch16.addConstraint(Sketcher.Constraint("Vertical", 0))
sketch16.addConstraint(Sketcher.Constraint("Horizontal", 1))
sketch16.addConstraint(Sketcher.Constraint("Vertical", 2))
sketch16.addConstraint(Sketcher.Constraint("Horizontal", 3))
sketch16.addConstraint(Sketcher.Constraint("DistanceX", 1, 1, 1, 2, Q("55 mm")))
sketch16.addConstraint(Sketcher.Constraint("DistanceY", 0, 1, 0, 2, Q("83 mm")))
sketch16.addConstraint(Sketcher.Constraint("DistanceX", 0, 2, -1, 1, Q("85 mm")))
sketch16.addConstraint(Sketcher.Constraint("DistanceY", -1, 1, 0, 2, Q("43.5 mm")))
pocket3 = doc.addObject("PartDesign::Pocket", "Pocket002")
body.addObject(pocket3)
pocket3.Profile = sketch16
pocket3.Length = 2
pocket3.Reversed = True

# Sketch on XZ plane
sketch17 = doc.addObject("Sketcher::SketchObject", "Sketch016")
body.addObject(sketch17)
sketch17.AttachmentSupport = (doc.XZ_Plane, [""])
sketch17.MapMode = "FlatFace"
sketch17.AttachmentOffset = App.Placement(Vector(0, 0, -5), App.Rotation())
add_polygon(sketch17, [(-88, -42.5), (-88, 47.5), (-27, 47.5), (-27, -42.5)])  # lines 0-3
add_polygon(sketch17, [(-30, 43.5), (-85, 43.5), (-85, -39.5), (-30, -39.5)])  # lines 4-7
sketch17.addConstraint(Sketcher.Constraint("Vertical", 0))
sketch17.addConstraint(Sketcher.Constraint("Horizontal", 1))
sketch17.addConstraint(Sketcher.Constraint("Vertical", 2))
sketch17.addConstraint(Sketcher.Constraint("Horizontal", 3))
sketch17.addConstraint(Sketcher.Constraint("Horizontal", 4))
sketch17.addConstraint(Sketcher.Constraint("Vertical", 5))
sketch17.addConstraint(Sketcher.Constraint("Horizontal", 6))
sketch17.addConstraint(Sketcher.Constraint("Vertical", 7))
sketch17.addConstraint(Sketcher.Constraint("DistanceX", 1, 1, 1, 2, Q("61 mm")))
sketch17.addConstraint(Sketcher.Constraint("DistanceX", 4, 2, 4, 1, Q("55 mm")))
sketch17.addConstraint(Sketcher.Constraint("DistanceY", 0, 1, 0, 2, Q("90 mm")))
sketch17.addConstraint(Sketcher.Constraint("DistanceY", 5, 2, 5, 1, Q("83 mm")))
sketch17.addConstraint(Sketcher.Constraint("DistanceX", 0, 2, -1, 1, Q("88 mm")))
sketch17.addConstraint(Sketcher.Constraint("DistanceX", 4, 2, -1, 1, Q("85 mm")))
sketch17.addConstraint(Sketcher.Constraint("DistanceY", 4, 2, 0, 2, Q("4 mm")))
sketch17.addConstraint(Sketcher.Constraint("DistanceY", -1, 1, 0, 2, Q("47.5 mm")))
pad14 = doc.addObject("PartDesign::Pad", "Pad013")
body.addObject(pad14)
pad14.Profile = sketch17
pad14.Length = 6
pad14.Reversed = True

# Sketch on XZ plane
sketch18 = doc.addObject("Sketcher::SketchObject", "Sketch017")
body.addObject(sketch18)
sketch18.AttachmentSupport = (doc.XZ_Plane, [""])
sketch18.MapMode = "FlatFace"
sketch18.AttachmentOffset = App.Placement(Vector(0, 0, -5), App.Rotation())
add_polygon(sketch18, [(-90, -42.5), (-90, 47.5), (-88, 47.5), (-88, -42.5)])  # lines 0-3
sketch18.addConstraint(Sketcher.Constraint("Vertical", 0))
sketch18.addConstraint(Sketcher.Constraint("Horizontal", 1))
sketch18.addConstraint(Sketcher.Constraint("Vertical", 2))
sketch18.addConstraint(Sketcher.Constraint("Horizontal", 3))
sketch18.addConstraint(Sketcher.Constraint("DistanceX", 1, 1, 1, 2, Q("2 mm")))
sketch18.addConstraint(Sketcher.Constraint("DistanceY", 0, 1, 0, 2, Q("90 mm")))
sketch18.addConstraint(Sketcher.Constraint("DistanceX", 0, 2, -1, 1, Q("90 mm")))
sketch18.addConstraint(Sketcher.Constraint("DistanceY", -1, 1, 0, 2, Q("47.5 mm")))
pocket4 = doc.addObject("PartDesign::Pocket", "Pocket003")
body.addObject(pocket4)
pocket4.Profile = sketch18
pocket4.Type = "ThroughAll"
pocket4.Reversed = True

# Sketch on XZ plane
sketch19 = doc.addObject("Sketcher::SketchObject", "Sketch018")
body.addObject(sketch19)
sketch19.AttachmentSupport = (doc.XZ_Plane, [""])
sketch19.MapMode = "FlatFace"
sketch19.AttachmentOffset = App.Placement(Vector(0, 0, -45), App.Rotation())
add_polygon(sketch19, [(27.5, -11.375), (27.5, 11.375), (32.5, 11.375), (32.5, -11.375)])  # lines 0-3
sketch19.addConstraint(Sketcher.Constraint("Vertical", 0))
sketch19.addConstraint(Sketcher.Constraint("Horizontal", 1))
sketch19.addConstraint(Sketcher.Constraint("Vertical", 2))
sketch19.addConstraint(Sketcher.Constraint("Horizontal", 3))
sketch19.addConstraint(Sketcher.Constraint("DistanceX", 1, 1, 1, 2, Q("5 mm")))
sketch19.addConstraint(Sketcher.Constraint("DistanceY", 0, 1, 0, 2, Q("22.75 mm")))
sketch19.addConstraint(Sketcher.Constraint("DistanceX", -1, 1, 0, 2, Q("27.5 mm")))
sketch19.addConstraint(Sketcher.Constraint("DistanceY", -1, 1, 0, 2, Q("11.375 mm")))
pocket5 = doc.addObject("PartDesign::Pocket", "Pocket004")
body.addObject(pocket5)
pocket5.Profile = sketch19
pocket5.Length = 16
pocket5.Reversed = True

# Sketch on YZ plane
sketch20 = doc.addObject("Sketcher::SketchObject", "Sketch019")
body.addObject(sketch20)
sketch20.AttachmentSupport = (doc.YZ_Plane, [""])
sketch20.MapMode = "FlatFace"
sketch20.AttachmentOffset = App.Placement(Vector(0, 0, 15), App.Rotation())
add_polygon(sketch20, [(45, -11.375), (25, -11.375), (25, -9.375), (45, -9.375)])  # lines 0-3
add_polygon(sketch20, [(45, 9.375), (25, 9.375), (25, 11.375), (45, 11.375)])  # lines 4-7
sketch20.addConstraint(Sketcher.Constraint("Horizontal", 0))
sketch20.addConstraint(Sketcher.Constraint("Vertical", 1))
sketch20.addConstraint(Sketcher.Constraint("Horizontal", 2))
sketch20.addConstraint(Sketcher.Constraint("Vertical", 3))
sketch20.addConstraint(Sketcher.Constraint("Horizontal", 4))
sketch20.addConstraint(Sketcher.Constraint("Vertical", 5))
sketch20.addConstraint(Sketcher.Constraint("Horizontal", 6))
sketch20.addConstraint(Sketcher.Constraint("Vertical", 7))
sketch20.addConstraint(Sketcher.Constraint("Symmetric", 1, 2, 4, 2, -1))
sketch20.addConstraint(Sketcher.Constraint("Symmetric", 3, 2, 6, 2, -1))
sketch20.addConstraint(Sketcher.Constraint("DistanceX", 0, 2, 0, 1, Q("20 mm")))
sketch20.addConstraint(Sketcher.Constraint("DistanceY", 1, 1, 1, 2, Q("2 mm")))
sketch20.addConstraint(Sketcher.Constraint("DistanceX", -1, 1, 0, 2, Q("25 mm")))
sketch20.addConstraint(Sketcher.Constraint("DistanceY", 1, 2, 4, 2, Q("18.75 mm")))
pad15 = doc.addObject("PartDesign::Pad", "Pad014")
body.addObject(pad15)
pad15.Profile = sketch20
pad15.Length = 11
pad15.Reversed = True
doc.recompute()

fillet = doc.addObject("PartDesign::Fillet", "Fillet")
body.addObject(fillet)
fillet.Base = (pad15, edges_at(pad15, [(15, 25, -10.375), (15, 25, 10.375)]))
fillet.Radius = 10
doc.recompute()

fillet2 = doc.addObject("PartDesign::Fillet", "Fillet001")
body.addObject(fillet2)
fillet2.Base = (fillet, edges_at(fillet, [(4, 25, -10.375), (4, 25, 10.375)]))
fillet2.Radius = 10

# Sketch on XY plane
sketch21 = doc.addObject("Sketcher::SketchObject", "Sketch020")
body.addObject(sketch21)
sketch21.AttachmentSupport = (doc.XY_Plane, [""])
sketch21.MapMode = "FlatFace"
sketch21.AttachmentOffset = App.Placement(Vector(0, 0, -1.625), App.Rotation())
add_polygon(sketch21, [(-5.35, 19.6), (-0.65, 19.6), (-0.65, 14), (-0.75, 14), (-0.75, 19.5), (-5.25, 19.5), (-5.25, 14), (-5.35, 14)])  # lines 0-7
sketch21.addConstraint(Sketcher.Constraint("Horizontal", 0))
sketch21.addConstraint(Sketcher.Constraint("Vertical", 1))
sketch21.addConstraint(Sketcher.Constraint("Horizontal", 2))
sketch21.addConstraint(Sketcher.Constraint("Vertical", 3))
sketch21.addConstraint(Sketcher.Constraint("Horizontal", 4))
sketch21.addConstraint(Sketcher.Constraint("Vertical", 5))
sketch21.addConstraint(Sketcher.Constraint("Horizontal", 6))
sketch21.addConstraint(Sketcher.Constraint("Vertical", 7))
sketch21.addConstraint(Sketcher.Constraint("Horizontal", 2, 2, 5, 2))
sketch21.addConstraint(Sketcher.Constraint("Equal", 2, 6))
sketch21.addConstraint(Sketcher.Constraint("DistanceX", 0, 1, 0, 2, Q("4.7 mm")))
sketch21.addConstraint(Sketcher.Constraint("DistanceX", 2, 2, 2, 1, Q("0.1 mm")))
sketch21.addConstraint(Sketcher.Constraint("DistanceY", 1, 2, 1, 1, Q("5.6 mm")))
sketch21.addConstraint(Sketcher.Constraint("DistanceY", 3, 1, 3, 2, Q("5.5 mm")))
sketch21.addConstraint(Sketcher.Constraint("DistanceY", -1, 1, 1, 2, Q("14 mm")))
sketch21.addConstraint(Sketcher.Constraint("DistanceX", 0, 2, -1, 1, Q("0.65 mm")))
pocket6 = doc.addObject("PartDesign::Pocket", "Pocket005")
body.addObject(pocket6)
pocket6.Profile = sketch21
pocket6.Length = 8
pocket6.Reversed = True

# Sketch on XY plane
sketch22 = doc.addObject("Sketcher::SketchObject", "Sketch021")
body.addObject(sketch22)
sketch22.AttachmentSupport = (doc.XY_Plane, [""])
sketch22.MapMode = "FlatFace"
sketch22.AttachmentOffset = App.Placement(Vector(0, 0, 21.375), App.Rotation())
add_polygon(sketch22, [(-0.4, 18.5), (-0.4, 18.4), (-5.6, 18.4), (-5.6, 18.5)])  # lines 0-3
sketch22.addConstraint(Sketcher.Constraint("Vertical", 0))
sketch22.addConstraint(Sketcher.Constraint("Horizontal", 1))
sketch22.addConstraint(Sketcher.Constraint("Vertical", 2))
sketch22.addConstraint(Sketcher.Constraint("Horizontal", 3))
sketch22.addConstraint(Sketcher.Constraint("DistanceX", 1, 2, 1, 1, Q("5.2 mm")))
sketch22.addConstraint(Sketcher.Constraint("DistanceY", 0, 2, 0, 1, Q("0.1 mm")))
sketch22.addConstraint(Sketcher.Constraint("DistanceX", 0, 2, -1, 1, Q("0.4 mm")))
sketch22.addConstraint(Sketcher.Constraint("DistanceY", -1, 1, 0, 2, Q("18.4 mm")))
pad16 = doc.addObject("PartDesign::Pad", "Pad015")
body.addObject(pad16)
pad16.Profile = sketch22
pad16.Length = 5

doc.recompute()
